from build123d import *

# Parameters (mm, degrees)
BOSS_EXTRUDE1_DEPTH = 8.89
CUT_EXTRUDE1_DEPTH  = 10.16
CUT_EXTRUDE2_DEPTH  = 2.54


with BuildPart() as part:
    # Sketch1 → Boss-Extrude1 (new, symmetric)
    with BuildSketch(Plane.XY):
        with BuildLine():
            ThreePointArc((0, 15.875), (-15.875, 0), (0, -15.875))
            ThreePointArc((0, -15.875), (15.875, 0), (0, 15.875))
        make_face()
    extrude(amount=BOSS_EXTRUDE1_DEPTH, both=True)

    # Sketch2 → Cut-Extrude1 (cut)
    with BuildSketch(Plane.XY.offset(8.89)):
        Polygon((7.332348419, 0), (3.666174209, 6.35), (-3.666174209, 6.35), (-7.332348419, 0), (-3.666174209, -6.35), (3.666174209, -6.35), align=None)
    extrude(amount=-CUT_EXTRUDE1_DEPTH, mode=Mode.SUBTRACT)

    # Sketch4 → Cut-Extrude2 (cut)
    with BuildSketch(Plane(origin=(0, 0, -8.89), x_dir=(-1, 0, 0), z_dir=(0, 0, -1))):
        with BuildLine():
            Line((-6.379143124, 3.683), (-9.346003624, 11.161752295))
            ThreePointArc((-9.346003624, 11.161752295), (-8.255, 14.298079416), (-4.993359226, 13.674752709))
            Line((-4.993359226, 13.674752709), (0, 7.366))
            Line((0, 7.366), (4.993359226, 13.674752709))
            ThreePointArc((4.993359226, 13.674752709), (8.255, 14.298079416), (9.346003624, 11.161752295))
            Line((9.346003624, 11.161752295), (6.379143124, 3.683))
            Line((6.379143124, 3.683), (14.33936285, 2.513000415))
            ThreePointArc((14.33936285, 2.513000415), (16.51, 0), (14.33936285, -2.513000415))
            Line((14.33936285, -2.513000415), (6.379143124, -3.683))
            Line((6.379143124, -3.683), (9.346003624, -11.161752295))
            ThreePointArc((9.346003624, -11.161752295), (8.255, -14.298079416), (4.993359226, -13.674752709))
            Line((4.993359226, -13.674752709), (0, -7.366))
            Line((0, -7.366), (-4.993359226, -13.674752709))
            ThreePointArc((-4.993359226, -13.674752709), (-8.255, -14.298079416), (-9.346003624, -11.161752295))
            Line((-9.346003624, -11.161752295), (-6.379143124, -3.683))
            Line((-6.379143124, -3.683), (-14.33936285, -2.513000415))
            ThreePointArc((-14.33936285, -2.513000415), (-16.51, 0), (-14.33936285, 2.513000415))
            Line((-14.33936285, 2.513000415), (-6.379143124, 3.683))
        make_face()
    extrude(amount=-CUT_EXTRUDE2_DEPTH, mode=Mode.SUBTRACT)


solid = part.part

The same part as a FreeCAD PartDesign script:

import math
import FreeCAD as App
import Part
import Sketcher

V = App.Vector
Q = App.Units.Quantity

doc = App.newDocument("Part")
params = doc.addObject("Spreadsheet::Sheet", "Params")
for row, (alias, value) in enumerate([
    ("sketch1_diameter", "1.25 in"),
    ("pad1_length", "0.7 in"),
    ("pocket1_length", "0.4 in"),
    ("sketch3_radius", "0.1 in"),
    ("pocket2_length", "0.1 in"),
], start=1):
    params.set(f"A{row}", alias)
    params.set(f"B{row}", "=" + value)
    params.setAlias(f"B{row}", alias)

body = doc.addObject("PartDesign::Body", "Body")

# Sketch on XY plane
sketch1 = body.newObject("Sketcher::SketchObject", "Sketch")
sketch1.AttachmentSupport = (doc.getObject("XY_Plane"), [""])
sketch1.MapMode = "FlatFace"
sketch1.addGeometry(Part.Circle(V(0, 0, 0), V(0, 0, 1), 15.875), False)
sketch1.addConstraint(Sketcher.Constraint("Coincident", 0, 3, -1, 1))
sketch1.addConstraint(Sketcher.Constraint("Diameter", 0, Q("1.25 in")))
sketch1.setExpression("Constraints[1]", "Params.sketch1_diameter")
pad1 = body.newObject("PartDesign::Pad", "Pad")
pad1.Profile = sketch1
pad1.setExpression("Length", "Params.pad1_length")
pad1.Midplane = True

# Sketch on XY plane
sketch2 = body.newObject("Sketcher::SketchObject", "Sketch001")
sketch2.AttachmentSupport = (doc.getObject("XY_Plane"), [""])
sketch2.MapMode = "FlatFace"
sketch2.AttachmentOffset = App.Placement(V(0, 0, 0.35 * 25.4), App.Rotation())
sketch2.addGeometry(Part.LineSegment(V(7.332348, 0, 0), V(3.666174, 6.35, 0)), False)
sketch2.addGeometry(Part.LineSegment(V(3.666174, 6.35, 0), V(-3.666174, 6.35, 0)), False)
sketch2.addGeometry(Part.LineSegment(V(-3.666174, 6.35, 0), V(-7.332348, 0, 0)), False)
sketch2.addGeometry(Part.LineSegment(V(-7.332348, 0, 0), V(-3.666174, -6.35, 0)), False)
sketch2.addGeometry(Part.LineSegment(V(-3.666174, -6.35, 0), V(3.666174, -6.35, 0)), False)
sketch2.addGeometry(Part.LineSegment(V(3.666174, -6.35, 0), V(7.332348, 0, 0)), False)
sketch2.addConstraint(Sketcher.Constraint("Coincident", 0, 2, 1, 1))
sketch2.addConstraint(Sketcher.Constraint("Coincident", 1, 2, 2, 1))
sketch2.addConstraint(Sketcher.Constraint("Coincident", 2, 2, 3, 1))
sketch2.addConstraint(Sketcher.Constraint("Coincident", 3, 2, 4, 1))
sketch2.addConstraint(Sketcher.Constraint("Coincident", 4, 2, 5, 1))
sketch2.addConstraint(Sketcher.Constraint("Coincident", 5, 2, 0, 1))
sketch2.addConstraint(Sketcher.Constraint("Horizontal", 1))
sketch2.addConstraint(Sketcher.Constraint("Horizontal", 4))
sketch2.addConstraint(Sketcher.Constraint("Symmetric", 0, 2, 3, 2, -1, 1))
sketch2.addConstraint(Sketcher.Constraint("Symmetric", 2, 2, 5, 2, -1, 1))
sketch2.addConstraint(Sketcher.Constraint("PointOnObject", 2, 2, -1))
sketch2.addConstraint(Sketcher.Constraint("Parallel", 2, 5))
sketch2.addConstraint(Sketcher.Constraint("Vertical", 1, 2, 3, 2))
sketch2.addConstraint(Sketcher.Constraint("Angle", 0, Q("120 deg")))
sketch2.addConstraint(Sketcher.Constraint("DistanceY", 3, 2, 1, 2, Q("0.5 in")))
sketch2.addConstraint(Sketcher.Constraint("DistanceX", 1, 2, 1, 1, 7.332348))
pocket1 = body.newObject("PartDesign::Pocket", "Pocket")
pocket1.Profile = sketch2
pocket1.setExpression("Length", "Params.pocket1_length")

# Sketch on XY plane
sketch3 = body.newObject("Sketcher::SketchObject", "Sketch002")
sketch3.AttachmentSupport = (doc.getObject("XY_Plane"), [""])
sketch3.MapMode = "FlatFace"
sketch3.AttachmentOffset = App.Placement(V(0, 0, -0.35 * 25.4), App.Rotation())
sketch3.addGeometry(Part.LineSegment(V(9.346004, 11.161752, 0), V(6.379143, 3.683, 0)), False)
sketch3.addGeometry(Part.LineSegment(V(6.379143, 3.683, 0), V(14.339363, 2.513, 0)), False)
sketch3.addGeometry(Part.ArcOfCircle(Part.Circle(V(13.97, 0, 0), V(0, 0, 1), 2.54), math.radians(-81.638489), math.radians(81.638489)), False)
sketch3.addGeometry(Part.LineSegment(V(14.339363, -2.513, 0), V(6.379143, -3.683, 0)), False)
sketch3.addGeometry(Part.LineSegment(V(6.379143, -3.683, 0), V(9.346004, -11.161752, 0)), False)
sketch3.addGeometry(Part.ArcOfCircle(Part.Circle(V(6.985, -12.098375, 0), V(0, 0, 1), 2.54), math.radians(-141.638489), math.radians(21.638489)), False)
sketch3.addGeometry(Part.LineSegment(V(4.993359, -13.674753, 0), V(0, -7.366, 0)), False)
sketch3.addGeometry(Part.LineSegment(V(0, -7.366, 0), V(-4.993359, -13.674753, 0)), False)
sketch3.addGeometry(Part.ArcOfCircle(Part.Circle(V(-6.985, -12.098375, 0), V(0, 0, 1), 2.54), math.radians(158.361511), math.radians(321.638489)), False)
sketch3.addGeometry(Part.LineSegment(V(-9.346004, -11.161752, 0), V(-6.379143, -3.683, 0)), False)
sketch3.addGeometry(Part.LineSegment(V(-6.379143, -3.683, 0), V(-14.339363, -2.513, 0)), False)
sketch3.addGeometry(Part.ArcOfCircle(Part.Circle(V(-13.97, 0, 0), V(0, 0, 1), 2.54), math.radians(98.361511), math.radians(261.638489)), False)
sketch3.addGeometry(Part.LineSegment(V(-14.339363, 2.513, 0), V(-6.379143, 3.683, 0)), False)
sketch3.addGeometry(Part.LineSegment(V(-6.379143, 3.683, 0), V(-9.346004, 11.161752, 0)), False)
sketch3.addGeometry(Part.ArcOfCircle(Part.Circle(V(-6.985, 12.098375, 0), V(0, 0, 1), 2.54), math.radians(38.361511), math.radians(201.638489)), False)
sketch3.addGeometry(Part.LineSegment(V(-4.993359, 13.674753, 0), V(0, 7.366, 0)), False)
sketch3.addGeometry(Part.LineSegment(V(0, 7.366, 0), V(4.993359, 13.674753, 0)), False)
sketch3.addGeometry(Part.ArcOfCircle(Part.Circle(V(6.985, 12.098375, 0), V(0, 0, 1), 2.54), math.radians(-21.638489), math.radians(141.638489)), False)
sketch3.addConstraint(Sketcher.Constraint("Coincident", 0, 2, 1, 1))
sketch3.addConstraint(Sketcher.Constraint("Tangent", 1, 2, 2, 2))
sketch3.addConstraint(Sketcher.Constraint("Tangent", 2, 1, 3, 1))
sketch3.addConstraint(Sketcher.Constraint("Coincident", 3, 2, 4, 1))
sketch3.addConstraint(Sketcher.Constraint("Tangent", 4, 2, 5, 2))
sketch3.addConstraint(Sketcher.Constraint("Tangent", 5, 1, 6, 1))
sketch3.addConstraint(Sketcher.Constraint("Coincident", 6, 2, 7, 1))
sketch3.addConstraint(Sketcher.Constraint("Tangent", 7, 2, 8, 2))
sketch3.addConstraint(Sketcher.Constraint("Tangent", 8, 1, 9, 1))
sketch3.addConstraint(Sketcher.Constraint("Coincident", 9, 2, 10, 1))
sketch3.addConstraint(Sketcher.Constraint("Tangent", 10, 2, 11, 2))
sketch3.addConstraint(Sketcher.Constraint("Tangent", 11, 1, 12, 1))
sketch3.addConstraint(Sketcher.Constraint("Coincident", 12, 2, 13, 1))
sketch3.addConstraint(Sketcher.Constraint("Tangent", 13, 2, 14, 2))
sketch3.addConstraint(Sketcher.Constraint("Tangent", 14, 1, 15, 1))
sketch3.addConstraint(Sketcher.Constraint("Coincident", 15, 2, 16, 1))
sketch3.addConstraint(Sketcher.Constraint("Tangent", 16, 2, 17, 2))
sketch3.addConstraint(Sketcher.Constraint("Tangent", 17, 1, 0, 1))
sketch3.addConstraint(Sketcher.Constraint("Equal", 2, 5))
sketch3.addConstraint(Sketcher.Constraint("Equal", 5, 8))
sketch3.addConstraint(Sketcher.Constraint("Equal", 8, 11))
sketch3.addConstraint(Sketcher.Constraint("Equal", 11, 14))
sketch3.addConstraint(Sketcher.Constraint("Equal", 14, 17))
sketch3.addConstraint(Sketcher.Constraint("Symmetric", 2, 3, 11, 3, -1, 1))
sketch3.addConstraint(Sketcher.Constraint("Symmetric", 5, 3, 14, 3, -1, 1))
sketch3.addConstraint(Sketcher.Constraint("Symmetric", 8, 3, 17, 3, -1, 1))
sketch3.addConstraint(Sketcher.Constraint("Symmetric", 0, 2, 9, 2, -1, 1))
sketch3.addConstraint(Sketcher.Constraint("Symmetric", 3, 2, 12, 2, -1, 1))
sketch3.addConstraint(Sketcher.Constraint("Symmetric", 6, 2, 15, 2, -1, 1))
sketch3.addConstraint(Sketcher.Constraint("Symmetric", 5, 3, 8, 3, -2))
sketch3.addConstraint(Sketcher.Constraint("Symmetric", 3, 2, 9, 2, -2))
sketch3.addConstraint(Sketcher.Constraint("PointOnObject", 2, 3, -1))
sketch3.addConstraint(Sketcher.Constraint("PointOnObject", 6, 2, -2))
sketch3.addConstraint(Sketcher.Constraint("Equal", 0, 1))
sketch3.addConstraint(Sketcher.Constraint("Equal", 4, 6))
sketch3.addConstraint(Sketcher.Constraint("Radius", 2, Q("0.1 in")))
sketch3.addConstraint(Sketcher.Constraint("DistanceX", 11, 3, 2, 3, Q("1.1 in")))
sketch3.addConstraint(Sketcher.Constraint("DistanceY", 6, 2, -1, 1, Q("0.29 in")))
sketch3.addConstraint(Sketcher.Constraint("DistanceX", 8, 3, 5, 3, Q("0.55 in")))
sketch3.addConstraint(Sketcher.Constraint("DistanceY", 3, 2, 0, 2, Q("0.29 in")))
sketch3.setExpression("Constraints[35]", "Params.sketch3_radius")
pocket2 = body.newObject("PartDesign::Pocket", "Pocket001")
pocket2.Profile = sketch3
pocket2.setExpression("Length", "Params.pocket2_length")
pocket2.Reversed = True

doc.recompute()
